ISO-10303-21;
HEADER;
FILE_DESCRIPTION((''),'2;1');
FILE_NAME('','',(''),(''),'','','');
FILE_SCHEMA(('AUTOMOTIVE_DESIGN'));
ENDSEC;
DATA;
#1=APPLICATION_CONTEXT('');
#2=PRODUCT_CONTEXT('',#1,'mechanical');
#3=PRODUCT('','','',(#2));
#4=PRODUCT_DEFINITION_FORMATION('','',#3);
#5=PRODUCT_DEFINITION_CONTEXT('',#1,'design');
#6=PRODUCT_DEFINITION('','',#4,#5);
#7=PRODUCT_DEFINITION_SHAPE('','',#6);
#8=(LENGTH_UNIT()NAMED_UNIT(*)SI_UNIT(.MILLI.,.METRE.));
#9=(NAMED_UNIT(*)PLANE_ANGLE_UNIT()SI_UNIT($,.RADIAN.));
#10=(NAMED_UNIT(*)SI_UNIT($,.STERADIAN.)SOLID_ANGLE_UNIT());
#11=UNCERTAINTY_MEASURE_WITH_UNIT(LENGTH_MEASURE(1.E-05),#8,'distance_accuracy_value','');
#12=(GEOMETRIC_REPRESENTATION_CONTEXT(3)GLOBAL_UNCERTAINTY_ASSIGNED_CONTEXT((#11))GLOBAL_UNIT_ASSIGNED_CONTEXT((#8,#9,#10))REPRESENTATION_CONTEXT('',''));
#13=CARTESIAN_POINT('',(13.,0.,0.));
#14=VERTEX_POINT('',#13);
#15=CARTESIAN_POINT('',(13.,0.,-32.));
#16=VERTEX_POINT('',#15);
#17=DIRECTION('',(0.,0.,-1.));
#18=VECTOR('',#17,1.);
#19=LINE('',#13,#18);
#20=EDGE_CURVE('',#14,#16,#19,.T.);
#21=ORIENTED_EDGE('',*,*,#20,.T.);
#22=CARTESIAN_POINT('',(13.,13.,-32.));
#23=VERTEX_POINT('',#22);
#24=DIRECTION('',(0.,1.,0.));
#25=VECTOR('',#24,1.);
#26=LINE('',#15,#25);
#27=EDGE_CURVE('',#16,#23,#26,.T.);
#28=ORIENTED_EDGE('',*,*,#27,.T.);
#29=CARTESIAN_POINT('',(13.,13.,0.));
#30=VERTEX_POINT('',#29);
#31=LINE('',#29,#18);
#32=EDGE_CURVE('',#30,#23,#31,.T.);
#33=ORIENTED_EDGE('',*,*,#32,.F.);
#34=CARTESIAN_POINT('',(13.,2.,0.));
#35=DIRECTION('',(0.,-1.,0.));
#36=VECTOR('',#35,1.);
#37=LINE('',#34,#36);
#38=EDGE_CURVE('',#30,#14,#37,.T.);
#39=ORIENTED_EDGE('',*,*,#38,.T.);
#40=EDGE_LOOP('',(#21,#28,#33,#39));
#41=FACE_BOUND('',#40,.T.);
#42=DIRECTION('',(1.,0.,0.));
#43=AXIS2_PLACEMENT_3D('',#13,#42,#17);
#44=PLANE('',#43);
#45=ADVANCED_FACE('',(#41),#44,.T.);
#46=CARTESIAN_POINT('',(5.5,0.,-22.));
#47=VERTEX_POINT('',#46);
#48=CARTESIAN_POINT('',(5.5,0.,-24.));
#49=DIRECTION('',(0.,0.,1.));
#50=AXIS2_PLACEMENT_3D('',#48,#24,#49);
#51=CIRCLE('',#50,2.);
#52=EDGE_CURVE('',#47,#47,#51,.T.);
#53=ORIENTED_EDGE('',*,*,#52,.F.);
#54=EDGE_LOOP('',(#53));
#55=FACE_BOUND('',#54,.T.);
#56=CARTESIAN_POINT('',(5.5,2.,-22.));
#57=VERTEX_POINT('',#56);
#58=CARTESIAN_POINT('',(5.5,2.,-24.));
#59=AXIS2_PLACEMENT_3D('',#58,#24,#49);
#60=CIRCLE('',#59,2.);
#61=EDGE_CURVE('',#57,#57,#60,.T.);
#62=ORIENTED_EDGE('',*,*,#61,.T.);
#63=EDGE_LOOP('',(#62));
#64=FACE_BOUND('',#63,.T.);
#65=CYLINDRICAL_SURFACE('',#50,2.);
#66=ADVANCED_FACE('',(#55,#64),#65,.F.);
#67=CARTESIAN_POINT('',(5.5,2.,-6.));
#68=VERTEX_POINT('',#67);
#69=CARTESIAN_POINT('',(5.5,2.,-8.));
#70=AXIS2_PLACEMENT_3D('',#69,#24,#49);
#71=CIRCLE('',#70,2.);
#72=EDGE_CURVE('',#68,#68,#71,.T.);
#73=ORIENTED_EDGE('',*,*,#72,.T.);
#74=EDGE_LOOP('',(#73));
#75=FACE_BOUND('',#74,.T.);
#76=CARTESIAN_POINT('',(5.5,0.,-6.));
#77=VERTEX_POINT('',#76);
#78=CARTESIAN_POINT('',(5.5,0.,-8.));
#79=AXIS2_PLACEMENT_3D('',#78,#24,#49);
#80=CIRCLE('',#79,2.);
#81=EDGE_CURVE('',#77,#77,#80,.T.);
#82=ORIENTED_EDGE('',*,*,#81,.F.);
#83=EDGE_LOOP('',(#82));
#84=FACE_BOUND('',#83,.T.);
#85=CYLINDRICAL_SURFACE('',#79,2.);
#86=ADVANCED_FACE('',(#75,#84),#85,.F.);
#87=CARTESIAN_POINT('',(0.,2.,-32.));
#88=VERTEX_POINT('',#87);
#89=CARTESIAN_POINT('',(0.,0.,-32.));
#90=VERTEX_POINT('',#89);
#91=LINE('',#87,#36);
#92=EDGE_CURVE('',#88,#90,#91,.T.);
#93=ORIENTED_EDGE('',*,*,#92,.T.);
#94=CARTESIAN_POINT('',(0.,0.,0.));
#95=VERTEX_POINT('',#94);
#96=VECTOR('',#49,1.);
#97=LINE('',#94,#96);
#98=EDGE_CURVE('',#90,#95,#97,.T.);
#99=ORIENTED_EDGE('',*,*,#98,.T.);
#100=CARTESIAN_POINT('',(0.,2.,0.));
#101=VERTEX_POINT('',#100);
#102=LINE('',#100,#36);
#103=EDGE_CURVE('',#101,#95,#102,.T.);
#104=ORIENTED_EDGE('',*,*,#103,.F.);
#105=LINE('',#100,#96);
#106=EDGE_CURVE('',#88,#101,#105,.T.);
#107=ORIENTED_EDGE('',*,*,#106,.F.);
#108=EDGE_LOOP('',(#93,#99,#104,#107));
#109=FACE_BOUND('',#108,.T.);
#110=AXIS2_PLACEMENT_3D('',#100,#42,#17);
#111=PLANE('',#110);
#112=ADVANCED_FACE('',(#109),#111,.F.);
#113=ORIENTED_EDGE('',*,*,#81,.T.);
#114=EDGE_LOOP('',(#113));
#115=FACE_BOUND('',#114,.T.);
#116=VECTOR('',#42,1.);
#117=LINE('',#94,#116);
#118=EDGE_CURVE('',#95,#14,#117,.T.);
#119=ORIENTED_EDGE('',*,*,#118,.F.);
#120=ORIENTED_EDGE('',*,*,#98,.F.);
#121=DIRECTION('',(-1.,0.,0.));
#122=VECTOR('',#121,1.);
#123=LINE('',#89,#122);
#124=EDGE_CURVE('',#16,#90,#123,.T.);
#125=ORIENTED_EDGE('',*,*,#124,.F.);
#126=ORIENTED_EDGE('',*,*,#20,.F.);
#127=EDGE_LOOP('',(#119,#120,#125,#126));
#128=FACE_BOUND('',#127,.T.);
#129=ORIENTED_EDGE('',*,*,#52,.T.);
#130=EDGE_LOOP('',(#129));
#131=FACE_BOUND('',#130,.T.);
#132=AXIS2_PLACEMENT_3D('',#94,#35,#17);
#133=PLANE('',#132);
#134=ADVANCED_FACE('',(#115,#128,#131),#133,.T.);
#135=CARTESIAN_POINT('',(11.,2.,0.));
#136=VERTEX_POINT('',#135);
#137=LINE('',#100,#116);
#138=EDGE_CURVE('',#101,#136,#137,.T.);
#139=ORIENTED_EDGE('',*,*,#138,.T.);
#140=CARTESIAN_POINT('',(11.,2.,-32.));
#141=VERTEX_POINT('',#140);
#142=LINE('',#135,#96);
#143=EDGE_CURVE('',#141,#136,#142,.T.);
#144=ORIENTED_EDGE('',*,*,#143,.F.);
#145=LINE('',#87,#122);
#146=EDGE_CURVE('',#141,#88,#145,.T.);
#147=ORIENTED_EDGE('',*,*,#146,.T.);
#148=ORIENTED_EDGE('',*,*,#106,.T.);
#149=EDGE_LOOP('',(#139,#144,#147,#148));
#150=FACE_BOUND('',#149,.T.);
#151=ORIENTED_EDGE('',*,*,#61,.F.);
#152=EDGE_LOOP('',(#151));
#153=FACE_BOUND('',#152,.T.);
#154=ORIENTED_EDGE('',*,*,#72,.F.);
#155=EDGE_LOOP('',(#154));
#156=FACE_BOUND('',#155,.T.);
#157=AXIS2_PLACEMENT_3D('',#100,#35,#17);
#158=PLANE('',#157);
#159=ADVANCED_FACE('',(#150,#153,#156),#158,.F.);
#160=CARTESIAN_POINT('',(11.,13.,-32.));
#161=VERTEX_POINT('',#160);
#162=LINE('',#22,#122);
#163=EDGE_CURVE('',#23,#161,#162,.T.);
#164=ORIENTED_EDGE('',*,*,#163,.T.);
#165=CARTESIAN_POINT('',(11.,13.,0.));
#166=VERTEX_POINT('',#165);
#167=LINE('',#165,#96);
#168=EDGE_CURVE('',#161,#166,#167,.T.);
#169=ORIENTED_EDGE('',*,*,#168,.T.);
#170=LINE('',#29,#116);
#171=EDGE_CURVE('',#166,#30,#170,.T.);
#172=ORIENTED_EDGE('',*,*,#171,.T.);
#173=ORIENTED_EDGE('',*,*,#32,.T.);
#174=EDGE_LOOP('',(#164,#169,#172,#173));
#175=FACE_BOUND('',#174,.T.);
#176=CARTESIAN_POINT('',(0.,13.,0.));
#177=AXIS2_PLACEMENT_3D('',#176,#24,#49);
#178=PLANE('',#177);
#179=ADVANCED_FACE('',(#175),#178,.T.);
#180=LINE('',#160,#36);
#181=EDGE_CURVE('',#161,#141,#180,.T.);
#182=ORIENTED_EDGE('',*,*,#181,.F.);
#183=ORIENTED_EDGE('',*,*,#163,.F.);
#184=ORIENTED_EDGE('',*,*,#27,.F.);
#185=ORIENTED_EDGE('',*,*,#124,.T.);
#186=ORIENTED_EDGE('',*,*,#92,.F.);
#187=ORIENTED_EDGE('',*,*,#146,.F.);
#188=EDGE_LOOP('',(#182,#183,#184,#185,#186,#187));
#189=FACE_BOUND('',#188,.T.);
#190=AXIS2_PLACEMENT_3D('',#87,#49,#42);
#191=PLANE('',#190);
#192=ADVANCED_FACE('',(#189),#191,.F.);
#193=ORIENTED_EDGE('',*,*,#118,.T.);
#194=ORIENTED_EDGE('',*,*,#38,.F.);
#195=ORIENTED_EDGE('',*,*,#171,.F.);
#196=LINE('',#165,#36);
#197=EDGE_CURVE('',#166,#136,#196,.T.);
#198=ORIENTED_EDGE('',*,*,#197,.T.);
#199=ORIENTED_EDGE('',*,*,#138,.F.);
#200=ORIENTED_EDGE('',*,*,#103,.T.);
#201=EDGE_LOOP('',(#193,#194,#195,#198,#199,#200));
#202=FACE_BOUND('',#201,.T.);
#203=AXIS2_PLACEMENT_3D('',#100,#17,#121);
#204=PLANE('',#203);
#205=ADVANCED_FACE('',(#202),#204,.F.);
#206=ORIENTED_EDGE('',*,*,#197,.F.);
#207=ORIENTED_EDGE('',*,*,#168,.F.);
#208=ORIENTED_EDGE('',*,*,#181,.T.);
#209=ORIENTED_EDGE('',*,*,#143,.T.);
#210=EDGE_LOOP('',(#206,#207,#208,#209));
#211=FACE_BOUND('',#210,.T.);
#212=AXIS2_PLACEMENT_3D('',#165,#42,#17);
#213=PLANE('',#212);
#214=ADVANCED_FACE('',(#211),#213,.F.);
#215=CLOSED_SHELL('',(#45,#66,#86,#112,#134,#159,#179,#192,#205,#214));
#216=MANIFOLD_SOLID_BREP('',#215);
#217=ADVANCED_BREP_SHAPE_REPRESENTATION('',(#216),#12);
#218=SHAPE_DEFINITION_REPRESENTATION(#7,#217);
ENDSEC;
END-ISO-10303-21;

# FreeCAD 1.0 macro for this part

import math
import FreeCAD as App
import Part
import Sketcher

V = App.Vector


def add_polygon(sketch, points):
    """Adds a closed chain of lines whose ends are joined by coincident constraints."""
    first, n = sketch.GeometryCount, len(points)
    for a, b in zip(points, points[1:] + points[:1]):
        sketch.addGeometry(Part.LineSegment(App.Vector(*a, 0), App.Vector(*b, 0)), False)
    for i in range(n):
        sketch.addConstraint(Sketcher.Constraint("Coincident", first + i, 2, first + (i + 1) % n, 1))

doc = App.newDocument("Part")
body = doc.addObject("PartDesign::Body", "Body")

# Sketch on XZ plane
sketch1 = body.newObject("Sketcher::SketchObject", "Sketch")
sketch1.AttachmentSupport = (doc.getObject("XZ_Plane"), [""])
sketch1.MapMode = "FlatFace"
add_polygon(sketch1, [(0, -32), (0, 0), (11, 0), (11, -32)])  # lines 0-3
sketch1.addConstraint(Sketcher.Constraint("Vertical", 0))
sketch1.addConstraint(Sketcher.Constraint("Horizontal", 1))
sketch1.addConstraint(Sketcher.Constraint("Vertical", 2))
sketch1.addConstraint(Sketcher.Constraint("Horizontal", 3))
sketch1.addConstraint(Sketcher.Constraint("Coincident", 0, 2, -1, 1))
sketch1.addConstraint(Sketcher.Constraint("DistanceX", 1, 1, 1, 2, 11.0))
sketch1.addConstraint(Sketcher.Constraint("DistanceY", 0, 1, 0, 2, 32.0))
pad1 = body.newObject("PartDesign::Pad", "Pad")
pad1.Profile = sketch1
pad1.Length = 2
pad1.Reversed = True

# Sketch on YZ plane
sketch2 = body.newObject("Sketcher::SketchObject", "Sketch001")
sketch2.AttachmentSupport = (doc.getObject("YZ_Plane"), [""])
sketch2.MapMode = "FlatFace"
sketch2.AttachmentOffset = App.Placement(V(0, 0, 11), App.Rotation())
add_polygon(sketch2, [(2, 0), (0, 0), (0, -32), (2, -32)])  # lines 0-3
sketch2.addConstraint(Sketcher.Constraint("Horizontal", 0))
sketch2.addConstraint(Sketcher.Constraint("Vertical", 1))
sketch2.addConstraint(Sketcher.Constraint("Horizontal", 2))
sketch2.addConstraint(Sketcher.Constraint("Vertical", 3))
sketch2.addConstraint(Sketcher.Constraint("Coincident", 0, 2, -1, 1))
sketch2.addConstraint(Sketcher.Constraint("DistanceX", 0, 2, 0, 1, 2.0))
sketch2.addConstraint(Sketcher.Constraint("DistanceY", 1, 2, 1, 1, 32.0))
pad2 = body.newObject("PartDesign::Pad", "Pad001")
pad2.Profile = sketch2
pad2.Length = 2

# Sketch on XZ plane
sketch3 = body.newObject("Sketcher::SketchObject", "Sketch002")
sketch3.AttachmentSupport = (doc.getObject("XZ_Plane"), [""])
sketch3.MapMode = "FlatFace"
sketch3.AttachmentOffset = App.Placement(V(0, 0, -2), App.Rotation())
add_polygon(sketch3, [(11, -32), (11, 0), (13, 0), (13, -32)])  # lines 0-3
sketch3.addConstraint(Sketcher.Constraint("Vertical", 0))
sketch3.addConstraint(Sketcher.Constraint("Horizontal", 1))
sketch3.addConstraint(Sketcher.Constraint("Vertical", 2))
sketch3.addConstraint(Sketcher.Constraint("Horizontal", 3))
sketch3.addConstraint(Sketcher.Constraint("PointOnObject", 0, 2, -1))
sketch3.addConstraint(Sketcher.Constraint("DistanceX", 1, 1, 1, 2, 2.0))
sketch3.addConstraint(Sketcher.Constraint("DistanceY", 0, 1, 0, 2, 32.0))
sketch3.addConstraint(Sketcher.Constraint("DistanceX", -1, 1, 0, 2, 11.0))
pad3 = body.newObject("PartDesign::Pad", "Pad002")
pad3.Profile = sketch3
pad3.Length = 11
pad3.Reversed = True

# Sketch on XZ plane
sketch4 = body.newObject("Sketcher::SketchObject", "Sketch003")
sketch4.AttachmentSupport = (doc.getObject("XZ_Plane"), [""])
sketch4.MapMode = "FlatFace"
sketch4.AttachmentOffset = App.Placement(V(0, 0, -2), App.Rotation())
sketch4.addGeometry(Part.ArcOfCircle(Part.Circle(V(5.5, -8, 0), V(0, 0, 1), 2), math.radians(-90), math.radians(0)), False)
sketch4.addGeometry(Part.ArcOfCircle(Part.Circle(V(5.5, -8, 0), V(0, 0, 1), 2), math.radians(90), math.radians(270)), False)
sketch4.addGeometry(Part.ArcOfCircle(Part.Circle(V(5.5, -8, 0), V(0, 0, 1), 2), math.radians(0), math.radians(90)), False)
sketch4.addGeometry(Part.ArcOfCircle(Part.Circle(V(5.5, -24, 0), V(0, 0, 1), 2), math.radians(90), math.radians(270)), False)
sketch4.addGeometry(Part.ArcOfCircle(Part.Circle(V(5.5, -24, 0), V(0, 0, 1), 2), math.radians(0), math.radians(90)), False)
sketch4.addGeometry(Part.ArcOfCircle(Part.Circle(V(5.5, -24, 0), V(0, 0, 1), 2), math.radians(-90), math.radians(0)), False)
sketch4.addConstraint(Sketcher.Constraint("Tangent", 0, 1, 1, 2))
sketch4.addConstraint(Sketcher.Constraint("Tangent", 1, 1, 2, 2))
sketch4.addConstraint(Sketcher.Constraint("Tangent", 2, 1, 0, 2))
sketch4.addConstraint(Sketcher.Constraint("Tangent", 3, 1, 4, 2))
sketch4.addConstraint(Sketcher.Constraint("Tangent", 4, 1, 5, 2))
sketch4.addConstraint(Sketcher.Constraint("Tangent", 5, 1, 3, 2))
sketch4.addConstraint(Sketcher.Constraint("Equal", 2, 3))
sketch4.addConstraint(Sketcher.Constraint("Horizontal", 1, 3, 2, 1))
sketch4.addConstraint(Sketcher.Constraint("Horizontal", 5, 3, 4, 1))
sketch4.addConstraint(Sketcher.Constraint("Vertical", 2, 3, 3, 3))
sketch4.addConstraint(Sketcher.Constraint("Vertical", 5, 3, 0, 1))
sketch4.addConstraint(Sketcher.Constraint("Vertical", 0, 1, 1, 1))
sketch4.addConstraint(Sketcher.Constraint("Vertical", 1, 1, 3, 1))
sketch4.addConstraint(Sketcher.Constraint("Vertical", 3, 1, 5, 1))
sketch4.addConstraint(Sketcher.Constraint("Radius", 0, 2.0))
sketch4.addConstraint(Sketcher.Constraint("DistanceY", 0, 3, -1, 1, 8.0))
sketch4.addConstraint(Sketcher.Constraint("DistanceY", 3, 3, -1, 1, 24.0))
sketch4.addConstraint(Sketcher.Constraint("DistanceX", -1, 1, 0, 3, 5.5))
pocket1 = body.newObject("PartDesign::Pocket", "Pocket")
pocket1.Profile = sketch4
pocket1.Type = "ThroughAll"
pocket1.Reversed = True

doc.recompute()
